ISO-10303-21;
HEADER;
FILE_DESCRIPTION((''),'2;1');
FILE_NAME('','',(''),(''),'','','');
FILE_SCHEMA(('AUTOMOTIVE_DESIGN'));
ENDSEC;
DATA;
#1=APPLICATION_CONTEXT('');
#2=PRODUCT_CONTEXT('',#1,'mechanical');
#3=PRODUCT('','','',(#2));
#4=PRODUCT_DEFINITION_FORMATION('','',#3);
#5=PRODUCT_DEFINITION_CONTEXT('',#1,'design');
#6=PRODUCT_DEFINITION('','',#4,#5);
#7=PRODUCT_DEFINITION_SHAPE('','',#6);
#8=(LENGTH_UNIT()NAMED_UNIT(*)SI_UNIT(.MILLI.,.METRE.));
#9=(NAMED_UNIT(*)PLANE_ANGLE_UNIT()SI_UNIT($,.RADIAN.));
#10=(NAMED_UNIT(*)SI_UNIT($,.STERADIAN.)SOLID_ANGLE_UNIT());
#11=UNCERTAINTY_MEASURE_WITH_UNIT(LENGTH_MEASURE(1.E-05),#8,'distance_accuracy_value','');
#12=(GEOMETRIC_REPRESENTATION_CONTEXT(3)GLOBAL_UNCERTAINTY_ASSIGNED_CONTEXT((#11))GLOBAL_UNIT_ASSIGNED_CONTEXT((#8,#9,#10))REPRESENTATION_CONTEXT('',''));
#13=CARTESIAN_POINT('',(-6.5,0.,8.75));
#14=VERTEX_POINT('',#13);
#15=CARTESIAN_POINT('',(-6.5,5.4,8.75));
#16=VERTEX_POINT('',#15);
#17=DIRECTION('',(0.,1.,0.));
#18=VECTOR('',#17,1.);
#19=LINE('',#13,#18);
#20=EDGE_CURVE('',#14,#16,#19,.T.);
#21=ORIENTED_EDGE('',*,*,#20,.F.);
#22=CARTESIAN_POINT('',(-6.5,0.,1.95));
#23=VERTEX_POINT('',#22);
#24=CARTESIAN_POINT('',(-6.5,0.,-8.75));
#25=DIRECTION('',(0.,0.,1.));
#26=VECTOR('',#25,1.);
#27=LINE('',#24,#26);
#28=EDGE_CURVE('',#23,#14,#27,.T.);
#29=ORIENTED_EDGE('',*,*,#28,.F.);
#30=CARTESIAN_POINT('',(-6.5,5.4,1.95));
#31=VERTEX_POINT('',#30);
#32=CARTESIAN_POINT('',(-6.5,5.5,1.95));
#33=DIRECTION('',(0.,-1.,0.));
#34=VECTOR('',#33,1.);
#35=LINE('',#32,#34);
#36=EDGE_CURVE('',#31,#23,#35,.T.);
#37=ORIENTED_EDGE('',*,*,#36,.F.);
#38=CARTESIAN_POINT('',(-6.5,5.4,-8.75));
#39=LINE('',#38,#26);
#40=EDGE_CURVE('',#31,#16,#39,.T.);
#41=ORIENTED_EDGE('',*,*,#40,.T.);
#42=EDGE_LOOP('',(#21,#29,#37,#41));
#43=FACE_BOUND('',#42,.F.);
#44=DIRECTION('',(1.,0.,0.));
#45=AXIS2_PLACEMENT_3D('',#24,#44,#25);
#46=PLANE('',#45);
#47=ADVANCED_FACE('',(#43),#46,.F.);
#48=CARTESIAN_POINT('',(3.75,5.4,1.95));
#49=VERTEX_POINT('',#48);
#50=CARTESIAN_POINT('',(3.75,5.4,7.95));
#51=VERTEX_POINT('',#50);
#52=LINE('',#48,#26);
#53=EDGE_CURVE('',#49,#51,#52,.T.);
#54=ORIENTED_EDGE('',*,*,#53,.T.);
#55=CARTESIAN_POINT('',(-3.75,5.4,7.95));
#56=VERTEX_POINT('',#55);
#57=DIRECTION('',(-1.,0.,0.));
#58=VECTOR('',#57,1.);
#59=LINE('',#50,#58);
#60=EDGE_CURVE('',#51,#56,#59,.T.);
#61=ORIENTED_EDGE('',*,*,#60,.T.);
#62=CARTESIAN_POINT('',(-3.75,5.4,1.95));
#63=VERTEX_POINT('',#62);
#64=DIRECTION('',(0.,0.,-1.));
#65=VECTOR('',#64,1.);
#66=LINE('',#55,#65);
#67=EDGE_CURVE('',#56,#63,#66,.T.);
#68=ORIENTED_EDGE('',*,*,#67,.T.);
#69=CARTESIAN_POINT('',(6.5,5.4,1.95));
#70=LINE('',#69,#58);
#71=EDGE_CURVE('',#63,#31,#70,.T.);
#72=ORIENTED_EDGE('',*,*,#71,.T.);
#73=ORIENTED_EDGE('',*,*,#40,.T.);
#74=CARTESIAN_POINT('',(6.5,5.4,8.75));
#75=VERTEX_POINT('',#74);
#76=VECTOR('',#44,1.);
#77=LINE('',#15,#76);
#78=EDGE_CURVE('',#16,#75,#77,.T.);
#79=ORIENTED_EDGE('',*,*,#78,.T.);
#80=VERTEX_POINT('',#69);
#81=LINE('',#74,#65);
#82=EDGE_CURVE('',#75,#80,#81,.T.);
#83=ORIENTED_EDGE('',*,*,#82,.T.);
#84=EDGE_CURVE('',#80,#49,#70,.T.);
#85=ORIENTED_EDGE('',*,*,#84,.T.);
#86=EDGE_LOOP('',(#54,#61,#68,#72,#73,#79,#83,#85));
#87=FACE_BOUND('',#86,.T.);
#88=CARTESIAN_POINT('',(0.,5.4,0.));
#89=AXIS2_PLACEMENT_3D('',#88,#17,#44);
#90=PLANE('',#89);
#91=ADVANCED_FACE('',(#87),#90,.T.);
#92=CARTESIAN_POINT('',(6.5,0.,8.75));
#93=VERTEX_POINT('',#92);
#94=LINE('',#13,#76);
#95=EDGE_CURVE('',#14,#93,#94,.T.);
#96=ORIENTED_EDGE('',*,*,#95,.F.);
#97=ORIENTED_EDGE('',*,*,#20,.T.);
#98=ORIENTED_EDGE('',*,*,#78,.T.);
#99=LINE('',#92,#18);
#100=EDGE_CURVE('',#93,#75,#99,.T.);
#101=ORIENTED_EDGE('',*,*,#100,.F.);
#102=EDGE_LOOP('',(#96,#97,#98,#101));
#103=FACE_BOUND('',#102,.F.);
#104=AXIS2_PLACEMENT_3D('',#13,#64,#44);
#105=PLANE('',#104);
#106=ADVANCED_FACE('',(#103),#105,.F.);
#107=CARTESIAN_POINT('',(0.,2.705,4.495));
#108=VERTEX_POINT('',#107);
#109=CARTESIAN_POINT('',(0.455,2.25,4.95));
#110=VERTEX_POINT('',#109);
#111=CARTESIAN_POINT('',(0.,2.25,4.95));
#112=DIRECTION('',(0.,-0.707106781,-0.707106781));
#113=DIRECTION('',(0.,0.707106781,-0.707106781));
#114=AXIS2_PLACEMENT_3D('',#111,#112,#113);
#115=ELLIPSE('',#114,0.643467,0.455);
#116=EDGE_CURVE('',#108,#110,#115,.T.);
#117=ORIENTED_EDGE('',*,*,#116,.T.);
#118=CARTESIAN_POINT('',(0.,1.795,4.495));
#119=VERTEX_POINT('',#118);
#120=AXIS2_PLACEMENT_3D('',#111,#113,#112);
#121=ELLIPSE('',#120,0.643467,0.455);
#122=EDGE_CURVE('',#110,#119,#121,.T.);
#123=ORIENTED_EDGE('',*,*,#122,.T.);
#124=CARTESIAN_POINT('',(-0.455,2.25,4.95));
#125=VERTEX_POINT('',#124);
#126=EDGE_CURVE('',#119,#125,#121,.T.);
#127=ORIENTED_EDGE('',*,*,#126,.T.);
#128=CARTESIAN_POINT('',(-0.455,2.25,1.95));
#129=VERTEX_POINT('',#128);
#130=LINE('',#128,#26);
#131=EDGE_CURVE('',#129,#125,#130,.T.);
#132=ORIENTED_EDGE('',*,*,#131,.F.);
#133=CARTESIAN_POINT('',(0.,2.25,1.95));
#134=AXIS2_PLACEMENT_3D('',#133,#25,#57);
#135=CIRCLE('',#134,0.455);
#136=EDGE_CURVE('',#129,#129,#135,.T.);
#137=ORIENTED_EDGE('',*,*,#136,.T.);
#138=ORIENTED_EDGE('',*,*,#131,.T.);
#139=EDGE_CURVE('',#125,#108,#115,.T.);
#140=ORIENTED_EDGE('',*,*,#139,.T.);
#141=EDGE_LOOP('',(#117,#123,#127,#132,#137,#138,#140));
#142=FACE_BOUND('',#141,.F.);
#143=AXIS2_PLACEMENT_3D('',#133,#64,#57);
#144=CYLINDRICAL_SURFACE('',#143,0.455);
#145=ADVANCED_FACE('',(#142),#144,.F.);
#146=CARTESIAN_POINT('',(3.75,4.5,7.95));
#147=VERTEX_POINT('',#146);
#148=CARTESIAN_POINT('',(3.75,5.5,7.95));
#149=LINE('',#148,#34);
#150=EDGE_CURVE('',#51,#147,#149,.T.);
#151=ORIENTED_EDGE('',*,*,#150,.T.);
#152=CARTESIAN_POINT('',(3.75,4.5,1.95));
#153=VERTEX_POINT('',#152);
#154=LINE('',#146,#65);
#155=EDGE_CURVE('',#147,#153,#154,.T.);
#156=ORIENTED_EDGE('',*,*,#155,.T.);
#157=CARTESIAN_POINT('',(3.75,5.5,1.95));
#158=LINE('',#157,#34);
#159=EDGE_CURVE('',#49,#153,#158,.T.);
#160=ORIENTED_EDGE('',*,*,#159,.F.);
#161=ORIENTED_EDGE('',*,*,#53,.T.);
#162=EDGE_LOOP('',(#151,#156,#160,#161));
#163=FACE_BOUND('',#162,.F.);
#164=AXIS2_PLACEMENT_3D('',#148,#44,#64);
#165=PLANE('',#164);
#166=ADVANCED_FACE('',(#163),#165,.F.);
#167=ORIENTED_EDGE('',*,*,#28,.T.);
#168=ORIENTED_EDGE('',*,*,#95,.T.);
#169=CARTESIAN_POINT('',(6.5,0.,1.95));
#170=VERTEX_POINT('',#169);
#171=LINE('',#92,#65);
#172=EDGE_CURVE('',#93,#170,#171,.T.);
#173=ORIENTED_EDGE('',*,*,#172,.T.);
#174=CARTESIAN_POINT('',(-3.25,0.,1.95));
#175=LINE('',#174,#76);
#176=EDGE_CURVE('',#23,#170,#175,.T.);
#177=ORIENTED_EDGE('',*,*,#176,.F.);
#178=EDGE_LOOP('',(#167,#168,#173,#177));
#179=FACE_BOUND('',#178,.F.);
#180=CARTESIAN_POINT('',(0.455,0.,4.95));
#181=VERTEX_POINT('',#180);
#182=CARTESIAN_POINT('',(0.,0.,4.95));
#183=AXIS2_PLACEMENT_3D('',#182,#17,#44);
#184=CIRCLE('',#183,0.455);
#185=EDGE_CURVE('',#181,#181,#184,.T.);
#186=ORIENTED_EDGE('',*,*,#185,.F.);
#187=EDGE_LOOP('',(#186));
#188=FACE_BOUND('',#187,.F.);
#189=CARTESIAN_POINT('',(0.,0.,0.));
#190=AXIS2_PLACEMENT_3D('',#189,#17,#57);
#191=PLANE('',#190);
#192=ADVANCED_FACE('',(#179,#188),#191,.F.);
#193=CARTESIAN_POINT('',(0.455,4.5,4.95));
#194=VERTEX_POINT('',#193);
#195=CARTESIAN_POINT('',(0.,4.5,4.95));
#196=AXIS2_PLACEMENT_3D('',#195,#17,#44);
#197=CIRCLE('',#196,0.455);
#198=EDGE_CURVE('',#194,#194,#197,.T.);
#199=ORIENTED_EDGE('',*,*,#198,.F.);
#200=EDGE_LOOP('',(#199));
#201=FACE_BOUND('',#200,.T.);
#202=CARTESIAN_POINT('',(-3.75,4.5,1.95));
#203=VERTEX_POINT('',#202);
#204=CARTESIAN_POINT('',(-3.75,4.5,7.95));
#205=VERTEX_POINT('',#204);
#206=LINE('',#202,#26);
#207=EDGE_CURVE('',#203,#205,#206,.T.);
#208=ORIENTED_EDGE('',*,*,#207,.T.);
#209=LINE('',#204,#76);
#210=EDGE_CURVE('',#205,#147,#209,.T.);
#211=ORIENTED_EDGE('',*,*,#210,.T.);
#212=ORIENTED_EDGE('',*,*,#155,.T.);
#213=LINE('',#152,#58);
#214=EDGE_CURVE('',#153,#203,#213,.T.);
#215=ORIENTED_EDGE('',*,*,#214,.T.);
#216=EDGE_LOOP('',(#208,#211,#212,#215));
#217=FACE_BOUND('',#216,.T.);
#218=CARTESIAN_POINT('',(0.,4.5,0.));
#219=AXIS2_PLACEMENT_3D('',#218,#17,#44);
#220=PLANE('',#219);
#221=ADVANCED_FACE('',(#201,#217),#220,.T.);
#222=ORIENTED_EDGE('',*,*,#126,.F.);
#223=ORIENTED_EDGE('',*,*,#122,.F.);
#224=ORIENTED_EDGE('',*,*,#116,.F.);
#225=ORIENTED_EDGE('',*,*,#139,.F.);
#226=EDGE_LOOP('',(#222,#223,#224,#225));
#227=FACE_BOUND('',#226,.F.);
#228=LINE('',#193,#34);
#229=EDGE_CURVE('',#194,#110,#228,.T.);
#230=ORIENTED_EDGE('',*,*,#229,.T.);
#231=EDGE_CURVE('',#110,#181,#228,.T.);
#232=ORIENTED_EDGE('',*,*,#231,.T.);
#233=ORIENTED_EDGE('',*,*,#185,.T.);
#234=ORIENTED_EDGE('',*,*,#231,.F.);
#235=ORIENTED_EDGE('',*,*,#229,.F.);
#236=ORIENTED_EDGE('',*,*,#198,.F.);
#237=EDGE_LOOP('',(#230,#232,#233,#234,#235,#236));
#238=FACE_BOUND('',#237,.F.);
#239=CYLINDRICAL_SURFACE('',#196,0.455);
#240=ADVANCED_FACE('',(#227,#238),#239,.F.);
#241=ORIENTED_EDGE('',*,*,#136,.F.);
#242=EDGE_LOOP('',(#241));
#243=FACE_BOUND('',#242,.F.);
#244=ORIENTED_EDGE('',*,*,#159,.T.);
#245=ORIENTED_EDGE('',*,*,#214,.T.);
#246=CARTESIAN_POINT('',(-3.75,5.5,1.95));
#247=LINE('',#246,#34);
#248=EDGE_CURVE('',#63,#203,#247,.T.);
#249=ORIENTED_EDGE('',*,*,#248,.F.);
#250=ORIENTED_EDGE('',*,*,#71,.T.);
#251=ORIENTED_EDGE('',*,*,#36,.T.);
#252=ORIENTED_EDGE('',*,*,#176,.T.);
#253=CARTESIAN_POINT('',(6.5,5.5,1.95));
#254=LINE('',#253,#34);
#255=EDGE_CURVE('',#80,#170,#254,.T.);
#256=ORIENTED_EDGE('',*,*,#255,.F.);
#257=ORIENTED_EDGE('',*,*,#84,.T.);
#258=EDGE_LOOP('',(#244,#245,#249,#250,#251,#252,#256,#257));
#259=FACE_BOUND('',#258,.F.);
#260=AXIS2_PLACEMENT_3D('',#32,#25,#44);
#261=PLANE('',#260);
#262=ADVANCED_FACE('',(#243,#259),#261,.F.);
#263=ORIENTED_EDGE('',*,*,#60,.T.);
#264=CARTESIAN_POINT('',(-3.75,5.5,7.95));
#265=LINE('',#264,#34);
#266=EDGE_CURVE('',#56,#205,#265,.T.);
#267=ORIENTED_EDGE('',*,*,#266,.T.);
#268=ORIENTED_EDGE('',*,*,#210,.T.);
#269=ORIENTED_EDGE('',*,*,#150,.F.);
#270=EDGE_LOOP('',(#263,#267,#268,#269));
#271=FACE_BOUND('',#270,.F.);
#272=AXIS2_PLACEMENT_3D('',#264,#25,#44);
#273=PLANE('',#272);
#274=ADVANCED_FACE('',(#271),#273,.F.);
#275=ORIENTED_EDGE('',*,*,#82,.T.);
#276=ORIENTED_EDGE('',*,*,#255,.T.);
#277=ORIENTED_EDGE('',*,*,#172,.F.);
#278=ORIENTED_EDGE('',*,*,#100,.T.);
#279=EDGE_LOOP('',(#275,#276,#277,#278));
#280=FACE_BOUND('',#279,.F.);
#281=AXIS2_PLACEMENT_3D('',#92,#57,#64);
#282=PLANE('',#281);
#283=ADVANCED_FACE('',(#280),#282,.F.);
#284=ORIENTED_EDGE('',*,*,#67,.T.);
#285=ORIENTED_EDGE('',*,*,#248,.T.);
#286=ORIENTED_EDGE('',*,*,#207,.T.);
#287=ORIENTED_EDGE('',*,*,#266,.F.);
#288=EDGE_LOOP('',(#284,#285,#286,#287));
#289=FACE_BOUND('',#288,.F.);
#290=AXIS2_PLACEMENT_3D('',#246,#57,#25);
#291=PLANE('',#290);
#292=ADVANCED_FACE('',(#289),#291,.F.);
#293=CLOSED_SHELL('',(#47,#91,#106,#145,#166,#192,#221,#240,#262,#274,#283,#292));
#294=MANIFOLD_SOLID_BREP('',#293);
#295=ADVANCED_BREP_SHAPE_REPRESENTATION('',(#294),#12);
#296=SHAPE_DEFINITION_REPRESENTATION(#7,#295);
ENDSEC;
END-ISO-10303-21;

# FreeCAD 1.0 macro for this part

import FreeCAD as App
import Part
import Sketcher
from FreeCAD import Vector
Q = App.Units.Quantity

doc = App.newDocument("Part")
body = doc.addObject("PartDesign::Body", "Body")

# Sketch on XZ plane
sketch1 = body.newObject("Sketcher::SketchObject", "Sketch")
sketch1.AttachmentSupport = (doc.getObject("XZ_Plane"), [""])
sketch1.MapMode = "FlatFace"
sketch1.addGeometry(Part.LineSegment(Vector(6, 9, 0), Vector(6, -9, 0)), False)
sketch1.addGeometry(Part.LineSegment(Vector(6, -9, 0), Vector(-6, -9, 0)), False)
sketch1.addGeometry(Part.LineSegment(Vector(-6, -9, 0), Vector(-6, 9, 0)), False)
sketch1.addGeometry(Part.LineSegment(Vector(-6, 9, 0), Vector(6, 9, 0)), False)
sketch1.addConstraint(Sketcher.Constraint("Coincident", 0, 2, 1, 1))
sketch1.addConstraint(Sketcher.Constraint("Coincident", 1, 2, 2, 1))
sketch1.addConstraint(Sketcher.Constraint("Coincident", 2, 2, 3, 1))
sketch1.addConstraint(Sketcher.Constraint("Coincident", 3, 2, 0, 1))
sketch1.addConstraint(Sketcher.Constraint("Vertical", 0))
sketch1.addConstraint(Sketcher.Constraint("Horizontal", 1))
sketch1.addConstraint(Sketcher.Constraint("Vertical", 2))
sketch1.addConstraint(Sketcher.Constraint("Horizontal", 3))
sketch1.addConstraint(Sketcher.Constraint("Symmetric", 0, 2, 2, 2, -1, 1))
sketch1.addConstraint(Sketcher.Constraint("DistanceX", 1, 2, 1, 1, Q("13 mm")))
sketch1.addConstraint(Sketcher.Constraint("DistanceY", 0, 2, 0, 1, Q("17.5 mm")))
pad1 = body.newObject("PartDesign::Pad", "Pad")
pad1.Profile = sketch1
pad1.Length = 5.5
pad1.Reversed = True

# Sketch on XZ plane
sketch2 = body.newObject("Sketcher::SketchObject", "Sketch001")
sketch2.AttachmentSupport = (doc.getObject("XZ_Plane"), [""])
sketch2.MapMode = "FlatFace"
sketch2.AttachmentOffset = App.Placement(Vector(0, 0, -5.5), App.Rotation())
sketch2.addGeometry(Part.LineSegment(Vector(4, 8, 0), Vector(4, 2, 0)), False)
sketch2.addGeometry(Part.LineSegment(Vector(4, 2, 0), Vector(-4, 2, 0)), False)
sketch2.addGeometry(Part.LineSegment(Vector(-4, 2, 0), Vector(-4, 8, 0)), False)
sketch2.addGeometry(Part.LineSegment(Vector(-4, 8, 0), Vector(4, 8, 0)), False)
sketch2.addConstraint(Sketcher.Constraint("Coincident", 0, 2, 1, 1))
sketch2.addConstraint(Sketcher.Constraint("Coincident", 1, 2, 2, 1))
sketch2.addConstraint(Sketcher.Constraint("Coincident", 2, 2, 3, 1))
sketch2.addConstraint(Sketcher.Constraint("Coincident", 3, 2, 0, 1))
sketch2.addConstraint(Sketcher.Constraint("Vertical", 0))
sketch2.addConstraint(Sketcher.Constraint("Horizontal", 1))
sketch2.addConstraint(Sketcher.Constraint("Vertical", 2))
sketch2.addConstraint(Sketcher.Constraint("Horizontal", 3))
sketch2.addConstraint(Sketcher.Constraint("DistanceY", 0, 2, 0, 1, Q("6 mm")))
sketch2.addConstraint(Sketcher.Constraint("DistanceX", 1, 2, 1, 1, Q("7.5 mm")))
sketch2.addConstraint(Sketcher.Constraint("DistanceX", -1, 1, 0, 2, Q("3.75 mm")))
sketch2.addConstraint(Sketcher.Constraint("DistanceY", -1, 1, 0, 2, Q("1.95 mm")))
pocket1 = body.newObject("PartDesign::Pocket", "Pocket")
pocket1.Profile = sketch2
pocket1.Length = 1
pocket1.Reversed = True

# Sketch on XZ plane
sketch3 = body.newObject("Sketcher::SketchObject", "Sketch002")
sketch3.AttachmentSupport = (doc.getObject("XZ_Plane"), [""])
sketch3.MapMode = "FlatFace"
sketch3.AttachmentOffset = App.Placement(Vector(0, 0, -5.5), App.Rotation())
sketch3.addGeometry(Part.LineSegment(Vector(-3.8, 1.9, 0), Vector(-6.5, 1.9, 0)), False)
sketch3.addGeometry(Part.LineSegment(Vector(-6.5, 1.9, 0), Vector(-6.5, 8.8, 0)), False)
sketch3.addGeometry(Part.LineSegment(Vector(-6.5, 8.8, 0), Vector(6.5, 8.8, 0)), False)
sketch3.addGeometry(Part.LineSegment(Vector(6.5, 8.8, 0), Vector(6.5, 1.9, 0)), False)
sketch3.addGeometry(Part.LineSegment(Vector(6.5, 1.9, 0), Vector(3.8, 1.9, 0)), False)
sketch3.addGeometry(Part.LineSegment(Vector(3.8, 1.9, 0), Vector(3.8, 8, 0)), False)
sketch3.addGeometry(Part.LineSegment(Vector(3.8, 8, 0), Vector(-3.8, 8, 0)), False)
sketch3.addGeometry(Part.LineSegment(Vector(-3.8, 8, 0), Vector(-3.8, 1.9, 0)), False)
sketch3.addConstraint(Sketcher.Constraint("Coincident", 0, 2, 1, 1))
sketch3.addConstraint(Sketcher.Constraint("Coincident", 1, 2, 2, 1))
sketch3.addConstraint(Sketcher.Constraint("Coincident", 2, 2, 3, 1))
sketch3.addConstraint(Sketcher.Constraint("Coincident", 3, 2, 4, 1))
sketch3.addConstraint(Sketcher.Constraint("Coincident", 4, 2, 5, 1))
sketch3.addConstraint(Sketcher.Constraint("Coincident", 5, 2, 6, 1))
sketch3.addConstraint(Sketcher.Constraint("Coincident", 6, 2, 7, 1))
sketch3.addConstraint(Sketcher.Constraint("Coincident", 7, 2, 0, 1))
sketch3.addConstraint(Sketcher.Constraint("Horizontal", 0))
sketch3.addConstraint(Sketcher.Constraint("Vertical", 1))
sketch3.addConstraint(Sketcher.Constraint("Horizontal", 2))
sketch3.addConstraint(Sketcher.Constraint("Vertical", 3))
sketch3.addConstraint(Sketcher.Constraint("Horizontal", 4))
sketch3.addConstraint(Sketcher.Constraint("Vertical", 5))
sketch3.addConstraint(Sketcher.Constraint("Horizontal", 6))
sketch3.addConstraint(Sketcher.Constraint("Vertical", 7))
sketch3.addConstraint(Sketcher.Constraint("Symmetric", 0, 2, 3, 2, -2))
sketch3.addConstraint(Sketcher.Constraint("Equal", 0, 4))
sketch3.addConstraint(Sketcher.Constraint("DistanceY", 1, 1, 1, 2, Q("6.8 mm")))
sketch3.addConstraint(Sketcher.Constraint("DistanceX", 2, 1, 2, 2, Q("13 mm")))
sketch3.addConstraint(Sketcher.Constraint("DistanceY", 5, 1, 5, 2, Q("6 mm")))
sketch3.addConstraint(Sketcher.Constraint("DistanceX", 6, 2, 6, 1, Q("7.5 mm")))
sketch3.addConstraint(Sketcher.Constraint("DistanceY", -1, 1, 0, 2, Q("1.95 mm")))
pocket2 = body.newObject("PartDesign::Pocket", "Pocket001")
pocket2.Profile = sketch3
pocket2.Length = 0.1
pocket2.Reversed = True

# Sketch on XY plane
sketch4 = body.newObject("Sketcher::SketchObject", "Sketch003")
sketch4.AttachmentSupport = (doc.getObject("XY_Plane"), [""])
sketch4.MapMode = "FlatFace"
sketch4.AttachmentOffset = App.Placement(Vector(0, 0, -8.75), App.Rotation())
sketch4.addGeometry(Part.LineSegment(Vector(-3.6, 0.8, 0), Vector(-3.6, 4.8, 0)), False)
sketch4.addGeometry(Part.LineSegment(Vector(-3.6, 4.8, 0), Vector(3.6, 4.8, 0)), False)
sketch4.addGeometry(Part.LineSegment(Vector(3.6, 4.8, 0), Vector(3.6, 0.8, 0)), False)
sketch4.addGeometry(Part.LineSegment(Vector(3.6, 0.8, 0), Vector(-3.6, 0.8, 0)), False)
sketch4.addConstraint(Sketcher.Constraint("Coincident", 0, 2, 1, 1))
sketch4.addConstraint(Sketcher.Constraint("Coincident", 1, 2, 2, 1))
sketch4.addConstraint(Sketcher.Constraint("Coincident", 2, 2, 3, 1))
sketch4.addConstraint(Sketcher.Constraint("Coincident", 3, 2, 0, 1))
sketch4.addConstraint(Sketcher.Constraint("Vertical", 0))
sketch4.addConstraint(Sketcher.Constraint("Horizontal", 1))
sketch4.addConstraint(Sketcher.Constraint("Vertical", 2))
sketch4.addConstraint(Sketcher.Constraint("Horizontal", 3))
sketch4.addConstraint(Sketcher.Constraint("DistanceY", 0, 1, 0, 2, Q("4 mm")))
sketch4.addConstraint(Sketcher.Constraint("DistanceX", 1, 1, 1, 2, Q("7.3 mm")))
sketch4.addConstraint(Sketcher.Constraint("DistanceX", 0, 2, -1, 1, Q("3.65 mm")))
sketch4.addConstraint(Sketcher.Constraint("DistanceY", -1, 1, 0, 2, Q("4.75 mm")))
pocket3 = body.newObject("PartDesign::Pocket", "Pocket002")
pocket3.Profile = sketch4
pocket3.Length = 0.1
pocket3.Reversed = True

# Sketch on XZ plane
sketch5 = body.newObject("Sketcher::SketchObject", "Sketch004")
sketch5.AttachmentSupport = (doc.getObject("XZ_Plane"), [""])
sketch5.MapMode = "FlatFace"
sketch5.AttachmentOffset = App.Placement(Vector(0, 0, -5.5), App.Rotation())
sketch5.addGeometry(Part.LineSegment(Vector(-6, -9, 0), Vector(-6, 2, 0)), False)
sketch5.addGeometry(Part.LineSegment(Vector(-6, 2, 0), Vector(6, 2, 0)), False)
sketch5.addGeometry(Part.LineSegment(Vector(6, 2, 0), Vector(6, -9, 0)), False)
sketch5.addGeometry(Part.LineSegment(Vector(6, -9, 0), Vector(-6, -9, 0)), False)
sketch5.addConstraint(Sketcher.Constraint("Coincident", 0, 2, 1, 1))
sketch5.addConstraint(Sketcher.Constraint("Coincident", 1, 2, 2, 1))
sketch5.addConstraint(Sketcher.Constraint("Coincident", 2, 2, 3, 1))
sketch5.addConstraint(Sketcher.Constraint("Coincident", 3, 2, 0, 1))
sketch5.addConstraint(Sketcher.Constraint("Vertical", 0))
sketch5.addConstraint(Sketcher.Constraint("Horizontal", 1))
sketch5.addConstraint(Sketcher.Constraint("Vertical", 2))
sketch5.addConstraint(Sketcher.Constraint("Horizontal", 3))
sketch5.addConstraint(Sketcher.Constraint("DistanceX", 1, 1, 1, 2, Q("13 mm")))
sketch5.addConstraint(Sketcher.Constraint("DistanceY", 0, 1, 0, 2, Q("10.7 mm")))
sketch5.addConstraint(Sketcher.Constraint("DistanceX", 0, 2, -1, 1, Q("6.5 mm")))
sketch5.addConstraint(Sketcher.Constraint("DistanceY", -1, 1, 0, 2, Q("1.95 mm")))
pocket4 = body.newObject("PartDesign::Pocket", "Pocket003")
pocket4.Profile = sketch5
pocket4.Length = 10
pocket4.Reversed = True

# Sketch on XZ plane
sketch6 = body.newObject("Sketcher::SketchObject", "Sketch005")
sketch6.AttachmentSupport = (doc.getObject("XZ_Plane"), [""])
sketch6.MapMode = "FlatFace"
sketch6.AttachmentOffset = App.Placement(Vector(0, 0, -4.5), App.Rotation())
sketch6.addGeometry(Part.Circle(Vector(0, 4.95, 0), Vector(0, 0, 1), 0.46), False)
sketch6.addConstraint(Sketcher.Constraint("PointOnObject", 0, 3, -2))
sketch6.addConstraint(Sketcher.Constraint("Diameter", 0, Q("0.91 mm")))
sketch6.addConstraint(Sketcher.Constraint("DistanceY", -1, 1, 0, 3, Q("4.95 mm")))
pocket5 = body.newObject("PartDesign::Pocket", "Pocket004")
pocket5.Profile = sketch6
pocket5.Length = 10
pocket5.Reversed = True

# Sketch on XY plane
sketch7 = body.newObject("Sketcher::SketchObject", "Sketch006")
sketch7.AttachmentSupport = (doc.getObject("XY_Plane"), [""])
sketch7.MapMode = "FlatFace"
sketch7.AttachmentOffset = App.Placement(Vector(0, 0, 1.95), App.Rotation())
sketch7.addGeometry(Part.Circle(Vector(0, 2.25, 0), Vector(0, 0, 1), 0.46), False)
sketch7.addConstraint(Sketcher.Constraint("PointOnObject", 0, 3, -2))
sketch7.addConstraint(Sketcher.Constraint("Diameter", 0, Q("0.91 mm")))
sketch7.addConstraint(Sketcher.Constraint("DistanceY", -1, 1, 0, 3, Q("2.25 mm")))
pocket6 = body.newObject("PartDesign::Pocket", "Pocket005")
pocket6.Profile = sketch7
pocket6.Type = "UpToFirst"
pocket6.Reversed = True

doc.recompute()
